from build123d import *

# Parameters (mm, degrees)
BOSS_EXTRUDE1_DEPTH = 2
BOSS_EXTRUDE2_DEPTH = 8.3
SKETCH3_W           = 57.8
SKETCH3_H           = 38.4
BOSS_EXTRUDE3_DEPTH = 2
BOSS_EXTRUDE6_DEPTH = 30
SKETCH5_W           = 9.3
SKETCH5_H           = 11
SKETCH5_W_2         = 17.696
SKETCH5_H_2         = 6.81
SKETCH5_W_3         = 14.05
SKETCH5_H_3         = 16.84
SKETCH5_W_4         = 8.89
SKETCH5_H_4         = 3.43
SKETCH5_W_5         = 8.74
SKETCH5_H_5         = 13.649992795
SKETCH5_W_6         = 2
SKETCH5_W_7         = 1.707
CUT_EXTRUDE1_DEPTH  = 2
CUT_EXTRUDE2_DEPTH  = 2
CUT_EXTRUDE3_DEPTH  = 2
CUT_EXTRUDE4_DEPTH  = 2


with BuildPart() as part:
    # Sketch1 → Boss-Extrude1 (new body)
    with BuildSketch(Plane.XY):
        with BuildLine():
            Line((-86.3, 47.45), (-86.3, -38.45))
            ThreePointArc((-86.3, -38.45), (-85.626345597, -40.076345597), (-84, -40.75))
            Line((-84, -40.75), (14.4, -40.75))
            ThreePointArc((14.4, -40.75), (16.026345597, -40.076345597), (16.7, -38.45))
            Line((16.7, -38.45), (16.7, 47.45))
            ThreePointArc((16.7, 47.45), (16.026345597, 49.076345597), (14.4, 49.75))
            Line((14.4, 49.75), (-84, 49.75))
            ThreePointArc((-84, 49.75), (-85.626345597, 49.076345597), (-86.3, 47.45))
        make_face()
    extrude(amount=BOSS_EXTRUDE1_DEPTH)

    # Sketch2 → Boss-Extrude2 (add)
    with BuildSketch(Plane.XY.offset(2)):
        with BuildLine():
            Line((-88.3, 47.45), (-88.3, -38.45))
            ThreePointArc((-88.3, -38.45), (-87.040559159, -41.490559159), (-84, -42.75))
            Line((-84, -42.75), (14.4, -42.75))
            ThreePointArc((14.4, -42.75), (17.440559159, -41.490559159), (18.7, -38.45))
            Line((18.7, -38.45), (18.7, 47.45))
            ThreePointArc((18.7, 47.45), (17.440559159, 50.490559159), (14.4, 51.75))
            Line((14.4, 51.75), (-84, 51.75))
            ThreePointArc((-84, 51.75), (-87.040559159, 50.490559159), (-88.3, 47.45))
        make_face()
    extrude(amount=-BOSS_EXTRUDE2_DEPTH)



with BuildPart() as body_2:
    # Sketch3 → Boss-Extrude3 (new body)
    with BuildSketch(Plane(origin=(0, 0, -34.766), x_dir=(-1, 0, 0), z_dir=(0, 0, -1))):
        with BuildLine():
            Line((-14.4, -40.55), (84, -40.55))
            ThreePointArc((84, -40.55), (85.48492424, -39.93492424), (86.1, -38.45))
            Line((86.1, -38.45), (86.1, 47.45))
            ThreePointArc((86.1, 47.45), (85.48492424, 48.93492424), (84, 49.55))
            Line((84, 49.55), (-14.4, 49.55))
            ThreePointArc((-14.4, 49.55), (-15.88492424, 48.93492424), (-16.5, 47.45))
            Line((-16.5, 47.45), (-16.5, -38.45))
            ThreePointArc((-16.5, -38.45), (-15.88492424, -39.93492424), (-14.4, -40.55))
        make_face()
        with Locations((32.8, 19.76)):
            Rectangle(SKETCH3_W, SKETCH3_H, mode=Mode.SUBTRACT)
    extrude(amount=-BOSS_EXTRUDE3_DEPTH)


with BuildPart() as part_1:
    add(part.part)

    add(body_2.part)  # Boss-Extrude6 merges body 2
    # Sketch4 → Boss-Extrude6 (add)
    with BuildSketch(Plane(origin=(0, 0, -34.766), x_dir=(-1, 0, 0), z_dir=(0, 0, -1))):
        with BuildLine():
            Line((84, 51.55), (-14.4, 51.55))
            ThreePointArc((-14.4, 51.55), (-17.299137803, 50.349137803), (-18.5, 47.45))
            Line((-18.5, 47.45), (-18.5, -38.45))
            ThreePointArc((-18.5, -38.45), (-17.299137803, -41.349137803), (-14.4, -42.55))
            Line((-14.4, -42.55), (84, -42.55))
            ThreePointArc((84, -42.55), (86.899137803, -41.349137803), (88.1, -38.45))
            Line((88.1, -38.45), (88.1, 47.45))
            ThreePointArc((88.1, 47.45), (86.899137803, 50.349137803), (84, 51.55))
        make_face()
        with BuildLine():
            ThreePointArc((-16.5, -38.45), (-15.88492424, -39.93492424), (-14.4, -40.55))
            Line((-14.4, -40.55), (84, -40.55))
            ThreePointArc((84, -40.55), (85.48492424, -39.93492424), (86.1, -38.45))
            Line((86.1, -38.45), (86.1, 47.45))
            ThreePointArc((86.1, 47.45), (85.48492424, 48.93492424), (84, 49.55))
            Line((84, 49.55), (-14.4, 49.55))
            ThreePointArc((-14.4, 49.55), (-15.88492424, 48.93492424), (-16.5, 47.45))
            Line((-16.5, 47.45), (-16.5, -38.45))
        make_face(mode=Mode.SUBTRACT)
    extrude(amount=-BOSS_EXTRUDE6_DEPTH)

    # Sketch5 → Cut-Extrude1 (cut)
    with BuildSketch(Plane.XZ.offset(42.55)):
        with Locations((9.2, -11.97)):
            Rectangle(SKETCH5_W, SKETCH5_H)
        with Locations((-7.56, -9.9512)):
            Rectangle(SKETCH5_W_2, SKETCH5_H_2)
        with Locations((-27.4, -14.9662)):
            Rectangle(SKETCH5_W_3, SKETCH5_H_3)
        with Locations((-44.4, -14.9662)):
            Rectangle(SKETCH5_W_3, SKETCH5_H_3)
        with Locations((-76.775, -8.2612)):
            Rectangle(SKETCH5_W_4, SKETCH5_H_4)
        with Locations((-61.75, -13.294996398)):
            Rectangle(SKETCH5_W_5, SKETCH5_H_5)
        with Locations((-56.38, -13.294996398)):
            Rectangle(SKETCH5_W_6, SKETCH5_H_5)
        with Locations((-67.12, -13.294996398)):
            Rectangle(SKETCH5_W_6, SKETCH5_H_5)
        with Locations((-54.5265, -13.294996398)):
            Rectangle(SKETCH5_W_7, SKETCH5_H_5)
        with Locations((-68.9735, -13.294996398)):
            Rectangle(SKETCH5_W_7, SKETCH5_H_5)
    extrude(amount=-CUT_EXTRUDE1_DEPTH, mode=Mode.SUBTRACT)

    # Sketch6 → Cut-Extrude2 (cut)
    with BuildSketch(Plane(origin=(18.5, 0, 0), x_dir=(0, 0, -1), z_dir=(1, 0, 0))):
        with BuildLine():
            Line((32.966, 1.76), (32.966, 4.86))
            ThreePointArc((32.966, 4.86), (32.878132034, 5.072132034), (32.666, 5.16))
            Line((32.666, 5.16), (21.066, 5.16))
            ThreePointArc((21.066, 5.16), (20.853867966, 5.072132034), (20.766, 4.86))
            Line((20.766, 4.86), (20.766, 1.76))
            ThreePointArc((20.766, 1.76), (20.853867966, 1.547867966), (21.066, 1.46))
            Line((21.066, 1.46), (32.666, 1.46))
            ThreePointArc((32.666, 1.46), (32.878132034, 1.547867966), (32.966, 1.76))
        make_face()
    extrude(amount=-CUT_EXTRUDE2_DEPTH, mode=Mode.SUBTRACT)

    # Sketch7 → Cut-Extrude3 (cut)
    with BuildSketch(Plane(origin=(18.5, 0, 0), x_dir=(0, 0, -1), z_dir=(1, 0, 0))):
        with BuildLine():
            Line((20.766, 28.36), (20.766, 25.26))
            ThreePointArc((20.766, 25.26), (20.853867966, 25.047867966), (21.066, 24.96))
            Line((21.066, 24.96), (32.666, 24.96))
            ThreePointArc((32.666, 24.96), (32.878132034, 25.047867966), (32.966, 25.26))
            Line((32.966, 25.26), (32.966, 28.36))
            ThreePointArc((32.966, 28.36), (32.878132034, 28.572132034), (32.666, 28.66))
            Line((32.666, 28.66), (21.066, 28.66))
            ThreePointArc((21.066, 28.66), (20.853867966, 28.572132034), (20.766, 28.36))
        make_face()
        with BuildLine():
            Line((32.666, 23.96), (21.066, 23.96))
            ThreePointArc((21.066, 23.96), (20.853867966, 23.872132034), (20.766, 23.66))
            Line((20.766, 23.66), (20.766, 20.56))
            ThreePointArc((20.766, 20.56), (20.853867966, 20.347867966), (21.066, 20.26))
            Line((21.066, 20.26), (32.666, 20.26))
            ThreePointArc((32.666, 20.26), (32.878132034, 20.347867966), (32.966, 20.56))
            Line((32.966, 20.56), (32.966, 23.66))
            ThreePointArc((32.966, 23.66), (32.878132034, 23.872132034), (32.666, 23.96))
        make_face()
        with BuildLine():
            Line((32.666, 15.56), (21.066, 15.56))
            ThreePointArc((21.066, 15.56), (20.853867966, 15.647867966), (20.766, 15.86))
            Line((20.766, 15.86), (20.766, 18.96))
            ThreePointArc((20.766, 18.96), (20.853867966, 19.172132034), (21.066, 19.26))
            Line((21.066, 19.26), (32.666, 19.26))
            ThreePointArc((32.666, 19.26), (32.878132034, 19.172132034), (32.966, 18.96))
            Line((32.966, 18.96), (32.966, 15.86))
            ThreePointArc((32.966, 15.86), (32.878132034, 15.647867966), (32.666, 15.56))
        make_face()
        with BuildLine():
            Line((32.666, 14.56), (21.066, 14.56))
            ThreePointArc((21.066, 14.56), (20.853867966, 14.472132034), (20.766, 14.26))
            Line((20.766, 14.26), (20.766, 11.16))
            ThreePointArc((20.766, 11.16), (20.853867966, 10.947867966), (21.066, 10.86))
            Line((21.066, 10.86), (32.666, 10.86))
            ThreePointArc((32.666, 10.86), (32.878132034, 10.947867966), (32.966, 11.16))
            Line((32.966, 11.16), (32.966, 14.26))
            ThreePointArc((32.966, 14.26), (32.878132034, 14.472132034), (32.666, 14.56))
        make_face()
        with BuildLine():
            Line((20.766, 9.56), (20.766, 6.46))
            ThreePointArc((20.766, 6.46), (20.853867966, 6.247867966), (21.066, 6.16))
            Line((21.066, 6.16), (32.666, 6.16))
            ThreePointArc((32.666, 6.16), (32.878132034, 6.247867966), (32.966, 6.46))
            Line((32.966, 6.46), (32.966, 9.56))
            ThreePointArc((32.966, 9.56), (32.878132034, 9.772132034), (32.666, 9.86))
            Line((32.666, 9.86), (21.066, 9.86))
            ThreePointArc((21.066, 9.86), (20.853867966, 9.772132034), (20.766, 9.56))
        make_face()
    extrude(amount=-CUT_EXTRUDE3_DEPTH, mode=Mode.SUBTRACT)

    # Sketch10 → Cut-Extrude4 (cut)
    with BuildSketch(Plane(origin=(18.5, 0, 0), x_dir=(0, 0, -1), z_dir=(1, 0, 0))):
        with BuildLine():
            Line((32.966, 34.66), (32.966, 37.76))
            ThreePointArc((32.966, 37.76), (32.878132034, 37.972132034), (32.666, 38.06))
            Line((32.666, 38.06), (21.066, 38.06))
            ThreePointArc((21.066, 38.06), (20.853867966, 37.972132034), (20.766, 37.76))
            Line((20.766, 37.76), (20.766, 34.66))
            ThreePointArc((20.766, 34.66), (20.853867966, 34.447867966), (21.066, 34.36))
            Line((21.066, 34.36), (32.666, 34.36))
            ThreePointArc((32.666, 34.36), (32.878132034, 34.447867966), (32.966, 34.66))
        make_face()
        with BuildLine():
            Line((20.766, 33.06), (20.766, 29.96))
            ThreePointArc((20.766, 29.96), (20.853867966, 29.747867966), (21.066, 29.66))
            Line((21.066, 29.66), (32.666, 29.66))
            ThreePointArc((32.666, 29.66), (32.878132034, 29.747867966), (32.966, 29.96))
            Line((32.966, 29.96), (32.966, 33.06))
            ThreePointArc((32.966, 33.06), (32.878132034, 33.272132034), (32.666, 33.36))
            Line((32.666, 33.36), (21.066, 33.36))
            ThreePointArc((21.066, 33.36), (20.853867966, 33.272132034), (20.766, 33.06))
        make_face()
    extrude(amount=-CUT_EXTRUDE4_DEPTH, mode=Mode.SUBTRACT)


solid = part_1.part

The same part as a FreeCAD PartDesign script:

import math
import FreeCAD as App
import Part
import Sketcher

doc = App.newDocument("Part")
body = doc.addObject("PartDesign::Body", "Body")

# Sketch on XY plane
sketch1 = body.newObject("Sketcher::SketchObject", "Sketch")
sketch1.AttachmentSupport = (doc.getObject("XY_Plane"), [""])
sketch1.MapMode = "FlatFace"
sketch1.addGeometry([
    Part.LineSegment(App.Vector(-86.3, 47.5, 0), App.Vector(-86.3, -38.5, 0)),  # 0
    Part.ArcOfCircle(Part.Circle(App.Vector(-84, -38.5, 0), App.Vector(0, 0, 1), 2.3), math.radians(180), math.radians(270)),  # 1
    Part.LineSegment(App.Vector(-84, -40.8, 0), App.Vector(14.4, -40.8, 0)),  # 2
    Part.ArcOfCircle(Part.Circle(App.Vector(14.4, -38.5, 0), App.Vector(0, 0, 1), 2.3), math.radians(-90), math.radians(0)),  # 3
    Part.LineSegment(App.Vector(16.7, -38.5, 0), App.Vector(16.7, 47.5, 0)),  # 4
    Part.ArcOfCircle(Part.Circle(App.Vector(14.4, 47.5, 0), App.Vector(0, 0, 1), 2.3), math.radians(0), math.radians(90)),  # 5
    Part.LineSegment(App.Vector(14.4, 49.8, 0), App.Vector(-84, 49.8, 0)),  # 6
    Part.ArcOfCircle(Part.Circle(App.Vector(-84, 47.5, 0), App.Vector(0, 0, 1), 2.3), math.radians(90), math.radians(180)),  # 7
], False)
sketch1.addConstraint([
    Sketcher.Constraint("Tangent", 0, 2, 1, 1),
    Sketcher.Constraint("Tangent", 1, 2, 2, 1),
    Sketcher.Constraint("Tangent", 2, 2, 3, 1),
    Sketcher.Constraint("Tangent", 3, 2, 4, 1),
    Sketcher.Constraint("Tangent", 4, 2, 5, 1),
    Sketcher.Constraint("Tangent", 5, 2, 6, 1),
    Sketcher.Constraint("Tangent", 6, 2, 7, 1),
    Sketcher.Constraint("Tangent", 7, 2, 0, 1),
    Sketcher.Constraint("Vertical", 0),
    Sketcher.Constraint("Horizontal", 2),
    Sketcher.Constraint("Vertical", 4),
    Sketcher.Constraint("Horizontal", 6),
    Sketcher.Constraint("Equal", 1, 3),
    Sketcher.Constraint("Equal", 3, 5),
    Sketcher.Constraint("Equal", 5, 7),
    Sketcher.Constraint("Radius", 1, 2.3),
    Sketcher.Constraint("DistanceX", 2, 1, 2, 2, 98.4),
    Sketcher.Constraint("DistanceY", 0, 2, 0, 1, 85.9),
    Sketcher.Constraint("DistanceX", 1, 3, -1, 1, 84.0),
    Sketcher.Constraint("DistanceY", 1, 3, -1, 1, 38.45),
])
pad1 = body.newObject("PartDesign::Pad", "Pad")
pad1.Profile = sketch1
pad1.Length = 2

# Sketch on XY plane
sketch2 = body.newObject("Sketcher::SketchObject", "Sketch001")
sketch2.AttachmentSupport = (doc.getObject("XY_Plane"), [""])
sketch2.MapMode = "FlatFace"
sketch2.AttachmentOffset = App.Placement(App.Vector(0, 0, 2), App.Rotation())
sketch2.addGeometry([
    Part.LineSegment(App.Vector(-88.3, 47.5, 0), App.Vector(-88.3, -38.5, 0)),  # 0
    Part.ArcOfCircle(Part.Circle(App.Vector(-84, -38.5, 0), App.Vector(0, 0, 1), 4.3), math.radians(180), math.radians(270)),  # 1
    Part.LineSegment(App.Vector(-84, -42.8, 0), App.Vector(14.4, -42.8, 0)),  # 2
    Part.ArcOfCircle(Part.Circle(App.Vector(14.4, -38.5, 0), App.Vector(0, 0, 1), 4.3), math.radians(-90), math.radians(0)),  # 3
    Part.LineSegment(App.Vector(18.7, -38.5, 0), App.Vector(18.7, 47.5, 0)),  # 4
    Part.ArcOfCircle(Part.Circle(App.Vector(14.4, 47.5, 0), App.Vector(0, 0, 1), 4.3), math.radians(0), math.radians(90)),  # 5
    Part.LineSegment(App.Vector(14.4, 51.8, 0), App.Vector(-84, 51.8, 0)),  # 6
    Part.ArcOfCircle(Part.Circle(App.Vector(-84, 47.5, 0), App.Vector(0, 0, 1), 4.3), math.radians(90), math.radians(180)),  # 7
], False)
sketch2.addConstraint([
    Sketcher.Constraint("Tangent", 0, 2, 1, 1),
    Sketcher.Constraint("Tangent", 1, 2, 2, 1),
    Sketcher.Constraint("Tangent", 2, 2, 3, 1),
    Sketcher.Constraint("Tangent", 3, 2, 4, 1),
    Sketcher.Constraint("Tangent", 4, 2, 5, 1),
    Sketcher.Constraint("Tangent", 5, 2, 6, 1),
    Sketcher.Constraint("Tangent", 6, 2, 7, 1),
    Sketcher.Constraint("Tangent", 7, 2, 0, 1),
    Sketcher.Constraint("Vertical", 0),
    Sketcher.Constraint("Horizontal", 2),
    Sketcher.Constraint("Vertical", 4),
    Sketcher.Constraint("Horizontal", 6),
    Sketcher.Constraint("Equal", 1, 3),
    Sketcher.Constraint("Equal", 3, 5),
    Sketcher.Constraint("Equal", 5, 7),
    Sketcher.Constraint("Radius", 1, 4.3),
    Sketcher.Constraint("DistanceX", 2, 1, 2, 2, 98.4),
    Sketcher.Constraint("DistanceY", 0, 2, 0, 1, 85.9),
    Sketcher.Constraint("DistanceX", 1, 3, -1, 1, 84.0),
    Sketcher.Constraint("DistanceY", 1, 3, -1, 1, 38.45),
])
pad2 = body.newObject("PartDesign::Pad", "Pad001")
pad2.Profile = sketch2
pad2.Length = 8.3
pad2.Reversed = True
body2 = doc.addObject("PartDesign::Body", "Body001")

# Sketch on XY plane
sketch3 = body2.newObject("Sketcher::SketchObject", "Sketch002")
sketch3.AttachmentSupport = (doc.getObject("XY_Plane001"), [""])
sketch3.MapMode = "FlatFace"
sketch3.AttachmentOffset = App.Placement(App.Vector(0, 0, -34.766), App.Rotation())
sketch3.addGeometry([
    Part.LineSegment(App.Vector(14.4, -40.5, 0), App.Vector(-84, -40.5, 0)),  # 0
    Part.ArcOfCircle(Part.Circle(App.Vector(-84, -38.4, 0), App.Vector(0, 0, 1), 2.1), math.radians(-180), math.radians(-90)),  # 1
    Part.LineSegment(App.Vector(-86.1, -38.5, 0), App.Vector(-86.1, 47.5, 0)),  # 2
    Part.ArcOfCircle(Part.Circle(App.Vector(-84, 47.4, 0), App.Vector(0, 0, 1), 2.1), math.radians(90), math.radians(180)),  # 3
    Part.LineSegment(App.Vector(-84, 49.5, 0), App.Vector(14.4, 49.5, 0)),  # 4
    Part.ArcOfCircle(Part.Circle(App.Vector(14.4, 47.4, 0), App.Vector(0, 0, 1), 2.1), math.radians(0), math.radians(90)),  # 5
    Part.LineSegment(App.Vector(16.5, 47.5, 0), App.Vector(16.5, -38.5, 0)),  # 6
    Part.ArcOfCircle(Part.Circle(App.Vector(14.4, -38.4, 0), App.Vector(0, 0, 1), 2.1), math.radians(-90), math.radians(0)),  # 7
    Part.LineSegment(App.Vector(-61.7, 0.6, 0), App.Vector(-3.9, 0.6, 0)),  # 8
    Part.LineSegment(App.Vector(-3.9, 0.6, 0), App.Vector(-3.9, 39, 0)),  # 9
    Part.LineSegment(App.Vector(-3.9, 39, 0), App.Vector(-61.7, 39, 0)),  # 10
    Part.LineSegment(App.Vector(-61.7, 39, 0), App.Vector(-61.7, 0.6, 0)),  # 11
], False)
sketch3.addConstraint([
    Sketcher.Constraint("Tangent", 0, 2, 1, 2),
    Sketcher.Constraint("Tangent", 1, 1, 2, 1),
    Sketcher.Constraint("Tangent", 2, 2, 3, 2),
    Sketcher.Constraint("Tangent", 3, 1, 4, 1),
    Sketcher.Constraint("Tangent", 4, 2, 5, 2),
    Sketcher.Constraint("Tangent", 5, 1, 6, 1),
    Sketcher.Constraint("Tangent", 6, 2, 7, 2),
    Sketcher.Constraint("Tangent", 7, 1, 0, 1),
    Sketcher.Constraint("Coincident", 8, 2, 9, 1),
    Sketcher.Constraint("Coincident", 9, 2, 10, 1),
    Sketcher.Constraint("Coincident", 10, 2, 11, 1),
    Sketcher.Constraint("Coincident", 11, 2, 8, 1),
    Sketcher.Constraint("Horizontal", 0),
    Sketcher.Constraint("Vertical", 2),
    Sketcher.Constraint("Horizontal", 4),
    Sketcher.Constraint("Vertical", 6),
    Sketcher.Constraint("Horizontal", 8),
    Sketcher.Constraint("Vertical", 9),
    Sketcher.Constraint("Horizontal", 10),
    Sketcher.Constraint("Vertical", 11),
    Sketcher.Constraint("Equal", 1, 3),
    Sketcher.Constraint("Equal", 3, 5),
    Sketcher.Constraint("Equal", 5, 7),
    Sketcher.Constraint("Radius", 1, 2.1),
    Sketcher.Constraint("DistanceX", 0, 2, 0, 1, 98.4),
    Sketcher.Constraint("DistanceX", 8, 1, 8, 2, 57.8),
    Sketcher.Constraint("DistanceY", 2, 1, 2, 2, 85.9),
    Sketcher.Constraint("DistanceY", 9, 1, 9, 2, 38.4),
    Sketcher.Constraint("DistanceX", 1, 3, -1, 1, 84.0),
    Sketcher.Constraint("DistanceX", 8, 2, -1, 1, 3.9),
    Sketcher.Constraint("DistanceY", 1, 3, -1, 1, 38.45),
    Sketcher.Constraint("DistanceY", -1, 1, 8, 2, 0.56),
])
pad3 = body2.newObject("PartDesign::Pad", "Pad002")
pad3.Profile = sketch3
pad3.Length = 2
body.AllowCompound = True
doc.recompute()

boolean = body.newObject("PartDesign::Boolean", "Boolean")
boolean.Type = "Fuse"
boolean.addObjects([body2])

# Sketch on XY plane
sketch4 = body.newObject("Sketcher::SketchObject", "Sketch003")
sketch4.AttachmentSupport = (doc.getObject("XY_Plane"), [""])
sketch4.MapMode = "FlatFace"
sketch4.AttachmentOffset = App.Placement(App.Vector(0, 0, -34.766), App.Rotation())
sketch4.addGeometry([
    Part.LineSegment(App.Vector(-84, 51.5, 0), App.Vector(14.4, 51.5, 0)),  # 0
    Part.ArcOfCircle(Part.Circle(App.Vector(14.4, 47.5, 0), App.Vector(0, 0, 1), 4.1), math.radians(0), math.radians(90)),  # 1
    Part.LineSegment(App.Vector(18.5, 47.5, 0), App.Vector(18.5, -38.5, 0)),  # 2
    Part.ArcOfCircle(Part.Circle(App.Vector(14.4, -38.5, 0), App.Vector(0, 0, 1), 4.1), math.radians(-90), math.radians(0)),  # 3
    Part.LineSegment(App.Vector(14.4, -42.5, 0), App.Vector(-84, -42.5, 0)),  # 4
    Part.ArcOfCircle(Part.Circle(App.Vector(-84, -38.5, 0), App.Vector(0, 0, 1), 4.1), math.radians(180), math.radians(270)),  # 5
    Part.LineSegment(App.Vector(-88.1, -38.5, 0), App.Vector(-88.1, 47.5, 0)),  # 6
    Part.ArcOfCircle(Part.Circle(App.Vector(-84, 47.5, 0), App.Vector(0, 0, 1), 4.1), math.radians(90), math.radians(180)),  # 7
    Part.ArcOfCircle(Part.Circle(App.Vector(14.4, -38.4, 0), App.Vector(0, 0, 1), 2.1), math.radians(-90), math.radians(0)),  # 8
    Part.LineSegment(App.Vector(16.5, -38.5, 0), App.Vector(16.5, 47.5, 0)),  # 9
    Part.ArcOfCircle(Part.Circle(App.Vector(14.4, 47.4, 0), App.Vector(0, 0, 1), 2.1), math.radians(0), math.radians(90)),  # 10
    Part.LineSegment(App.Vector(14.4, 49.5, 0), App.Vector(-84, 49.5, 0)),  # 11
    Part.ArcOfCircle(Part.Circle(App.Vector(-84, 47.4, 0), App.Vector(0, 0, 1), 2.1), math.radians(90), math.radians(180)),  # 12
    Part.LineSegment(App.Vector(-86.1, 47.5, 0), App.Vector(-86.1, -38.5, 0)),  # 13
    Part.ArcOfCircle(Part.Circle(App.Vector(-84, -38.4, 0), App.Vector(0, 0, 1), 2.1), math.radians(-180), math.radians(-90)),  # 14
    Part.LineSegment(App.Vector(-84, -40.5, 0), App.Vector(14.4, -40.5, 0)),  # 15
], False)
sketch4.addConstraint([
    Sketcher.Constraint("Tangent", 0, 2, 1, 2),
    Sketcher.Constraint("Tangent", 1, 1, 2, 1),
    Sketcher.Constraint("Tangent", 2, 2, 3, 2),
    Sketcher.Constraint("Tangent", 3, 1, 4, 1),
    Sketcher.Constraint("Tangent", 4, 2, 5, 2),
    Sketcher.Constraint("Tangent", 5, 1, 6, 1),
    Sketcher.Constraint("Tangent", 6, 2, 7, 2),
    Sketcher.Constraint("Tangent", 7, 1, 0, 1),
    Sketcher.Constraint("Tangent", 8, 2, 9, 1),
    Sketcher.Constraint("Tangent", 9, 2, 10, 1),
    Sketcher.Constraint("Tangent", 10, 2, 11, 1),
    Sketcher.Constraint("Tangent", 11, 2, 12, 1),
    Sketcher.Constraint("Tangent", 12, 2, 13, 1),
    Sketcher.Constraint("Tangent", 13, 2, 14, 1),
    Sketcher.Constraint("Tangent", 14, 2, 15, 1),
    Sketcher.Constraint("Tangent", 15, 2, 8, 1),
    Sketcher.Constraint("Horizontal", 0),
    Sketcher.Constraint("Vertical", 2),
    Sketcher.Constraint("Horizontal", 4),
    Sketcher.Constraint("Vertical", 6),
    Sketcher.Constraint("Vertical", 9),
    Sketcher.Constraint("Horizontal", 11),
    Sketcher.Constraint("Vertical", 13),
    Sketcher.Constraint("Horizontal", 15),
    Sketcher.Constraint("Coincident", 8, 3, 3, 3),
    Sketcher.Constraint("Coincident", 10, 3, 1, 3),
    Sketcher.Constraint("Coincident", 12, 3, 7, 3),
    Sketcher.Constraint("Equal", 1, 3),
    Sketcher.Constraint("Equal", 3, 5),
    Sketcher.Constraint("Equal", 5, 7),
    Sketcher.Constraint("Equal", 12, 14),
    Sketcher.Constraint("Radius", 1, 4.1),
    Sketcher.Constraint("Radius", 8, 2.1),
    Sketcher.Constraint("DistanceX", 0, 1, 0, 2, 98.4),
    Sketcher.Constraint("DistanceY", 2, 2, 2, 1, 85.9),
    Sketcher.Constraint("DistanceX", 5, 3, -1, 1, 84.0),
    Sketcher.Constraint("DistanceY", -1, 1, 1, 3, 47.45),
])
pad4 = body.newObject("PartDesign::Pad", "Pad003")
pad4.Profile = sketch4
pad4.Length = 30

# Sketch on XZ plane
sketch5 = body.newObject("Sketcher::SketchObject", "Sketch004")
sketch5.AttachmentSupport = (doc.getObject("XZ_Plane"), [""])
sketch5.MapMode = "FlatFace"
sketch5.AttachmentOffset = App.Placement(App.Vector(0, 0, 42.55), App.Rotation())
sketch5.addGeometry([
    Part.LineSegment(App.Vector(4.5, -6.5, 0), App.Vector(4.5, -17.5, 0)),  # 0
    Part.LineSegment(App.Vector(4.5, -17.5, 0), App.Vector(13.8, -17.5, 0)),  # 1
    Part.LineSegment(App.Vector(13.8, -17.5, 0), App.Vector(13.8, -6.5, 0)),  # 2
    Part.LineSegment(App.Vector(13.8, -6.5, 0), App.Vector(4.5, -6.5, 0)),  # 3
    Part.LineSegment(App.Vector(-16.4, -6.5, 0), App.Vector(-16.4, -13.4, 0)),  # 4
    Part.LineSegment(App.Vector(-16.4, -13.4, 0), App.Vector(1.3, -13.4, 0)),  # 5
    Part.LineSegment(App.Vector(1.3, -13.4, 0), App.Vector(1.3, -6.5, 0)),  # 6
    Part.LineSegment(App.Vector(1.3, -6.5, 0), App.Vector(-16.4, -6.5, 0)),  # 7
    Part.LineSegment(App.Vector(-34.4, -6.5, 0), App.Vector(-34.4, -23.4, 0)),  # 8
    Part.LineSegment(App.Vector(-34.4, -23.4, 0), App.Vector(-20.4, -23.4, 0)),  # 9
    Part.LineSegment(App.Vector(-20.4, -23.4, 0), App.Vector(-20.4, -6.5, 0)),  # 10
    Part.LineSegment(App.Vector(-20.4, -6.5, 0), App.Vector(-34.4, -6.5, 0)),  # 11
    Part.LineSegment(App.Vector(-51.4, -6.5, 0), App.Vector(-51.4, -23.4, 0)),  # 12
    Part.LineSegment(App.Vector(-51.4, -23.4, 0), App.Vector(-37.4, -23.4, 0)),  # 13
    Part.LineSegment(App.Vector(-37.4, -23.4, 0), App.Vector(-37.4, -6.5, 0)),  # 14
    Part.LineSegment(App.Vector(-37.4, -6.5, 0), App.Vector(-51.4, -6.5, 0)),  # 15
    Part.LineSegment(App.Vector(-81.2, -6.5, 0), App.Vector(-81.2, -10, 0)),  # 16
    Part.LineSegment(App.Vector(-81.2, -10, 0), App.Vector(-72.3, -10, 0)),  # 17
    Part.LineSegment(App.Vector(-72.3, -10, 0), App.Vector(-72.3, -6.5, 0)),  # 18
    Part.LineSegment(App.Vector(-72.3, -6.5, 0), App.Vector(-81.2, -6.5, 0)),  # 19
    Part.LineSegment(App.Vector(-53.7, -20.1, 0), App.Vector(-53.7, -6.5, 0)),  # 20
    Part.LineSegment(App.Vector(-53.7, -6.5, 0), App.Vector(-69.8, -6.5, 0)),  # 21
    Part.LineSegment(App.Vector(-69.8, -6.5, 0), App.Vector(-69.8, -20.1, 0)),  # 22
    Part.LineSegment(App.Vector(-69.8, -20.1, 0), App.Vector(-53.7, -20.1, 0)),  # 23
], False)
sketch5.addConstraint([
    Sketcher.Constraint("Coincident", 0, 2, 1, 1),
    Sketcher.Constraint("Coincident", 1, 2, 2, 1),
    Sketcher.Constraint("Coincident", 2, 2, 3, 1),
    Sketcher.Constraint("Coincident", 3, 2, 0, 1),
    Sketcher.Constraint("Coincident", 4, 2, 5, 1),
    Sketcher.Constraint("Coincident", 5, 2, 6, 1),
    Sketcher.Constraint("Coincident", 6, 2, 7, 1),
    Sketcher.Constraint("Coincident", 7, 2, 4, 1),
    Sketcher.Constraint("Coincident", 8, 2, 9, 1),
    Sketcher.Constraint("Coincident", 9, 2, 10, 1),
    Sketcher.Constraint("Coincident", 10, 2, 11, 1),
    Sketcher.Constraint("Coincident", 11, 2, 8, 1),
    Sketcher.Constraint("Coincident", 12, 2, 13, 1),
    Sketcher.Constraint("Coincident", 13, 2, 14, 1),
    Sketcher.Constraint("Coincident", 14, 2, 15, 1),
    Sketcher.Constraint("Coincident", 15, 2, 12, 1),
    Sketcher.Constraint("Coincident", 16, 2, 17, 1),
    Sketcher.Constraint("Coincident", 17, 2, 18, 1),
    Sketcher.Constraint("Coincident", 18, 2, 19, 1),
    Sketcher.Constraint("Coincident", 19, 2, 16, 1),
    Sketcher.Constraint("Coincident", 20, 2, 21, 1),
    Sketcher.Constraint("Coincident", 21, 2, 22, 1),
    Sketcher.Constraint("Coincident", 22, 2, 23, 1),
    Sketcher.Constraint("Coincident", 23, 2, 20, 1),
    Sketcher.Constraint("Vertical", 0),
    Sketcher.Constraint("Horizontal", 1),
    Sketcher.Constraint("Vertical", 2),
    Sketcher.Constraint("Horizontal", 3),
    Sketcher.Constraint("Vertical", 4),
    Sketcher.Constraint("Horizontal", 5),
    Sketcher.Constraint("Vertical", 6),
    Sketcher.Constraint("Horizontal", 7),
    Sketcher.Constraint("Vertical", 8),
    Sketcher.Constraint("Horizontal", 9),
    Sketcher.Constraint("Vertical", 10),
    Sketcher.Constraint("Horizontal", 11),
    Sketcher.Constraint("Vertical", 12),
    Sketcher.Constraint("Horizontal", 13),
    Sketcher.Constraint("Vertical", 14),
    Sketcher.Constraint("Horizontal", 15),
    Sketcher.Constraint("Vertical", 16),
    Sketcher.Constraint("Horizontal", 17),
    Sketcher.Constraint("Vertical", 18),
    Sketcher.Constraint("Horizontal", 19),
    Sketcher.Constraint("Vertical", 20),
    Sketcher.Constraint("Horizontal", 21),
    Sketcher.Constraint("Vertical", 22),
    Sketcher.Constraint("Horizontal", 23),
    Sketcher.Constraint("Horizontal", 7, 2, 10, 2),
    Sketcher.Constraint("Horizontal", 9, 2, 12, 2),
    Sketcher.Constraint("Horizontal", 11, 2, 14, 2),
    Sketcher.Constraint("Horizontal", 15, 2, 18, 2),
    Sketcher.Constraint("Horizontal", 3, 2, 20, 2),
    Sketcher.Constraint("Equal", 11, 13),
    Sketcher.Constraint("DistanceY", 0, 2, 0, 1, 11.0),
    Sketcher.Constraint("DistanceX", 1, 1, 1, 2, 9.3),
    Sketcher.Constraint("DistanceX", 12, 2, 8, 2, 17.0),
    Sketcher.Constraint("DistanceX", 9, 1, 9, 2, 14.05),
    Sketcher.Constraint("DistanceX", 17, 1, 17, 2, 8.89),
    Sketcher.Constraint("DistanceY", 4, 2, 4, 1, 6.81),
    Sketcher.Constraint("DistanceY", 8, 2, 8, 1, 16.84),
    Sketcher.Constraint("DistanceY", 16, 2, 16, 1, 3.43),
    Sketcher.Constraint("DistanceX", 5, 1, 5, 2, 17.696),
    Sketcher.Constraint("DistanceX", 21, 2, 21, 1, 16.154),
    Sketcher.Constraint("DistanceX", -1, 1, 0, 2, 4.55),
    Sketcher.Constraint("DistanceY", 0, 2, -1, 1, 17.47),
    Sketcher.Constraint("DistanceX", 16, 2, -1, 1, 81.22),
    Sketcher.Constraint("DistanceX", 4, 2, -1, 1, 16.408),
    Sketcher.Constraint("DistanceX", 8, 2, -1, 1, 34.425),
    Sketcher.Constraint("DistanceX", 20, 2, -1, 1, 53.673),
    Sketcher.Constraint("DistanceY", 4, 2, -1, 1, 13.3562),
    Sketcher.Constraint("DistanceY", 20, 1, 20, 2, 13.649993),
])
pocket1 = body.newObject("PartDesign::Pocket", "Pocket")
pocket1.Profile = sketch5
pocket1.Length = 2

# Sketch on YZ plane
sketch6 = body.newObject("Sketcher::SketchObject", "Sketch005")
sketch6.AttachmentSupport = (doc.getObject("YZ_Plane"), [""])
sketch6.MapMode = "FlatFace"
sketch6.AttachmentOffset = App.Placement(App.Vector(0, 0, 18.5), App.Rotation())
sketch6.addGeometry([
    Part.LineSegment(App.Vector(1.76, -32.97, 0), App.Vector(4.86, -32.97, 0)),  # 0
    Part.ArcOfCircle(Part.Circle(App.Vector(4.86, -32.67, 0), App.Vector(0, 0, 1), 0.3), math.radians(-90), math.radians(0)),  # 1
    Part.LineSegment(App.Vector(5.16, -32.67, 0), App.Vector(5.16, -21.07, 0)),  # 2
    Part.ArcOfCircle(Part.Circle(App.Vector(4.86, -21.07, 0), App.Vector(0, 0, 1), 0.3), math.radians(0), math.radians(90)),  # 3
    Part.LineSegment(App.Vector(4.86, -20.77, 0), App.Vector(1.76, -20.77, 0)),  # 4
    Part.ArcOfCircle(Part.Circle(App.Vector(1.76, -21.07, 0), App.Vector(0, 0, 1), 0.3), math.radians(90), math.radians(180)),  # 5
    Part.LineSegment(App.Vector(1.46, -21.07, 0), App.Vector(1.46, -32.67, 0)),  # 6
    Part.ArcOfCircle(Part.Circle(App.Vector(1.76, -32.67, 0), App.Vector(0, 0, 1), 0.3), math.radians(-180), math.radians(-90)),  # 7
], False)
sketch6.addConstraint([
    Sketcher.Constraint("Tangent", 0, 2, 1, 1),
    Sketcher.Constraint("Tangent", 1, 2, 2, 1),
    Sketcher.Constraint("Tangent", 2, 2, 3, 1),
    Sketcher.Constraint("Tangent", 3, 2, 4, 1),
    Sketcher.Constraint("Tangent", 4, 2, 5, 1),
    Sketcher.Constraint("Tangent", 5, 2, 6, 1),
    Sketcher.Constraint("Tangent", 6, 2, 7, 1),
    Sketcher.Constraint("Tangent", 7, 2, 0, 1),
    Sketcher.Constraint("Horizontal", 0),
    Sketcher.Constraint("Vertical", 2),
    Sketcher.Constraint("Horizontal", 4),
    Sketcher.Constraint("Vertical", 6),
    Sketcher.Constraint("Equal", 1, 3),
    Sketcher.Constraint("Equal", 3, 5),
    Sketcher.Constraint("Equal", 5, 7),
    Sketcher.Constraint("Radius", 1, 0.3),
    Sketcher.Constraint("DistanceX", 0, 1, 0, 2, 3.1),
    Sketcher.Constraint("DistanceY", 2, 1, 2, 2, 11.6),
    Sketcher.Constraint("DistanceX", -1, 1, 1, 3, 4.86),
    Sketcher.Constraint("DistanceY", 1, 3, -1, 1, 32.666),
])
pocket2 = body.newObject("PartDesign::Pocket", "Pocket001")
pocket2.Profile = sketch6
pocket2.Length = 2

# Sketch on YZ plane
sketch7 = body.newObject("Sketcher::SketchObject", "Sketch006")
sketch7.AttachmentSupport = (doc.getObject("YZ_Plane"), [""])
sketch7.MapMode = "FlatFace"
sketch7.AttachmentOffset = App.Placement(App.Vector(0, 0, 18.5), App.Rotation())
sketch7.addGeometry([
    Part.LineSegment(App.Vector(28.36, -20.77, 0), App.Vector(25.26, -20.77, 0)),  # 0
    Part.ArcOfCircle(Part.Circle(App.Vector(25.26, -21.07, 0), App.Vector(0, 0, 1), 0.3), math.radians(90), math.radians(180)),  # 1
    Part.LineSegment(App.Vector(24.96, -21.07, 0), App.Vector(24.96, -32.67, 0)),  # 2
    Part.ArcOfCircle(Part.Circle(App.Vector(25.26, -32.67, 0), App.Vector(0, 0, 1), 0.3), math.radians(-180), math.radians(-90)),  # 3
    Part.LineSegment(App.Vector(25.26, -32.97, 0), App.Vector(28.36, -32.97, 0)),  # 4
    Part.ArcOfCircle(Part.Circle(App.Vector(28.36, -32.67, 0), App.Vector(0, 0, 1), 0.3), math.radians(-90), math.radians(0)),  # 5
    Part.LineSegment(App.Vector(28.66, -32.67, 0), App.Vector(28.66, -21.07, 0)),  # 6
    Part.ArcOfCircle(Part.Circle(App.Vector(28.36, -21.07, 0), App.Vector(0, 0, 1), 0.3), math.radians(0), math.radians(90)),  # 7
    Part.LineSegment(App.Vector(23.96, -32.67, 0), App.Vector(23.96, -21.07, 0)),  # 8
    Part.ArcOfCircle(Part.Circle(App.Vector(23.66, -21.07, 0), App.Vector(0, 0, 1), 0.3), math.radians(0), math.radians(90)),  # 9
    Part.LineSegment(App.Vector(23.66, -20.77, 0), App.Vector(20.56, -20.77, 0)),  # 10
    Part.ArcOfCircle(Part.Circle(App.Vector(20.56, -21.07, 0), App.Vector(0, 0, 1), 0.3), math.radians(90), math.radians(180)),  # 11
    Part.LineSegment(App.Vector(20.26, -21.07, 0), App.Vector(20.26, -32.67, 0)),  # 12
    Part.ArcOfCircle(Part.Circle(App.Vector(20.56, -32.67, 0), App.Vector(0, 0, 1), 0.3), math.radians(-180), math.radians(-90)),  # 13
    Part.LineSegment(App.Vector(20.56, -32.97, 0), App.Vector(23.66, -32.97, 0)),  # 14
    Part.ArcOfCircle(Part.Circle(App.Vector(23.66, -32.67, 0), App.Vector(0, 0, 1), 0.3), math.radians(-90), math.radians(0)),  # 15
    Part.LineSegment(App.Vector(15.56, -21.07, 0), App.Vector(15.56, -32.67, 0)),  # 16
    Part.ArcOfCircle(Part.Circle(App.Vector(15.86, -32.67, 0), App.Vector(0, 0, 1), 0.3), math.radians(-180), math.radians(-90)),  # 17
    Part.LineSegment(App.Vector(15.86, -32.97, 0), App.Vector(18.96, -32.97, 0)),  # 18
    Part.ArcOfCircle(Part.Circle(App.Vector(18.96, -32.67, 0), App.Vector(0, 0, 1), 0.3), math.radians(-90), math.radians(0)),  # 19
    Part.LineSegment(App.Vector(19.26, -32.67, 0), App.Vector(19.26, -21.07, 0)),  # 20
    Part.ArcOfCircle(Part.Circle(App.Vector(18.96, -21.07, 0), App.Vector(0, 0, 1), 0.3), math.radians(0), math.radians(90)),  # 21
    Part.LineSegment(App.Vector(18.96, -20.77, 0), App.Vector(15.86, -20.77, 0)),  # 22
    Part.ArcOfCircle(Part.Circle(App.Vector(15.86, -21.07, 0), App.Vector(0, 0, 1), 0.3), math.radians(90), math.radians(180)),  # 23
    Part.LineSegment(App.Vector(14.56, -32.67, 0), App.Vector(14.56, -21.07, 0)),  # 24
    Part.ArcOfCircle(Part.Circle(App.Vector(14.26, -21.07, 0), App.Vector(0, 0, 1), 0.3), math.radians(0), math.radians(90)),  # 25
    Part.LineSegment(App.Vector(14.26, -20.77, 0), App.Vector(11.16, -20.77, 0)),  # 26
    Part.ArcOfCircle(Part.Circle(App.Vector(11.16, -21.07, 0), App.Vector(0, 0, 1), 0.3), math.radians(90), math.radians(180)),  # 27
    Part.LineSegment(App.Vector(10.86, -21.07, 0), App.Vector(10.86, -32.67, 0)),  # 28
    Part.ArcOfCircle(Part.Circle(App.Vector(11.16, -32.67, 0), App.Vector(0, 0, 1), 0.3), math.radians(-180), math.radians(-90)),  # 29
    Part.LineSegment(App.Vector(11.16, -32.97, 0), App.Vector(14.26, -32.97, 0)),  # 30
    Part.ArcOfCircle(Part.Circle(App.Vector(14.26, -32.67, 0), App.Vector(0, 0, 1), 0.3), math.radians(-90), math.radians(0)),  # 31
    Part.LineSegment(App.Vector(9.56, -20.77, 0), App.Vector(6.46, -20.77, 0)),  # 32
    Part.ArcOfCircle(Part.Circle(App.Vector(6.46, -21.07, 0), App.Vector(0, 0, 1), 0.3), math.radians(90), math.radians(180)),  # 33
    Part.LineSegment(App.Vector(6.16, -21.07, 0), App.Vector(6.16, -32.67, 0)),  # 34
    Part.ArcOfCircle(Part.Circle(App.Vector(6.46, -32.67, 0), App.Vector(0, 0, 1), 0.3), math.radians(-180), math.radians(-90)),  # 35
    Part.LineSegment(App.Vector(6.46, -32.97, 0), App.Vector(9.56, -32.97, 0)),  # 36
    Part.ArcOfCircle(Part.Circle(App.Vector(9.56, -32.67, 0), App.Vector(0, 0, 1), 0.3), math.radians(-90), math.radians(0)),  # 37
    Part.LineSegment(App.Vector(9.86, -32.67, 0), App.Vector(9.86, -21.07, 0)),  # 38
    Part.ArcOfCircle(Part.Circle(App.Vector(9.56, -21.07, 0), App.Vector(0, 0, 1), 0.3), math.radians(0), math.radians(90)),  # 39
], False)
sketch7.addConstraint([
    Sketcher.Constraint("Tangent", 0, 2, 1, 1),
    Sketcher.Constraint("Tangent", 1, 2, 2, 1),
    Sketcher.Constraint("Tangent", 2, 2, 3, 1),
    Sketcher.Constraint("Tangent", 3, 2, 4, 1),
    Sketcher.Constraint("Tangent", 4, 2, 5, 1),
    Sketcher.Constraint("Tangent", 5, 2, 6, 1),
    Sketcher.Constraint("Tangent", 6, 2, 7, 1),
    Sketcher.Constraint("Tangent", 7, 2, 0, 1),
    Sketcher.Constraint("Tangent", 8, 2, 9, 1),
    Sketcher.Constraint("Tangent", 9, 2, 10, 1),
    Sketcher.Constraint("Tangent", 10, 2, 11, 1),
    Sketcher.Constraint("Tangent", 11, 2, 12, 1),
    Sketcher.Constraint("Tangent", 12, 2, 13, 1),
    Sketcher.Constraint("Tangent", 13, 2, 14, 1),
    Sketcher.Constraint("Tangent", 14, 2, 15, 1),
    Sketcher.Constraint("Tangent", 15, 2, 8, 1),
    Sketcher.Constraint("Tangent", 16, 2, 17, 1),
    Sketcher.Constraint("Tangent", 17, 2, 18, 1),
    Sketcher.Constraint("Tangent", 18, 2, 19, 1),
    Sketcher.Constraint("Tangent", 19, 2, 20, 1),
    Sketcher.Constraint("Tangent", 20, 2, 21, 1),
    Sketcher.Constraint("Tangent", 21, 2, 22, 1),
    Sketcher.Constraint("Tangent", 22, 2, 23, 1),
    Sketcher.Constraint("Tangent", 23, 2, 16, 1),
    Sketcher.Constraint("Tangent", 24, 2, 25, 1),
    Sketcher.Constraint("Tangent", 25, 2, 26, 1),
    Sketcher.Constraint("Tangent", 26, 2, 27, 1),
    Sketcher.Constraint("Tangent", 27, 2, 28, 1),
    Sketcher.Constraint("Tangent", 28, 2, 29, 1),
    Sketcher.Constraint("Tangent", 29, 2, 30, 1),
    Sketcher.Constraint("Tangent", 30, 2, 31, 1),
    Sketcher.Constraint("Tangent", 31, 2, 24, 1),
    Sketcher.Constraint("Tangent", 32, 2, 33, 1),
    Sketcher.Constraint("Tangent", 33, 2, 34, 1),
    Sketcher.Constraint("Tangent", 34, 2, 35, 1),
    Sketcher.Constraint("Tangent", 35, 2, 36, 1),
    Sketcher.Constraint("Tangent", 36, 2, 37, 1),
    Sketcher.Constraint("Tangent", 37, 2, 38, 1),
    Sketcher.Constraint("Tangent", 38, 2, 39, 1),
    Sketcher.Constraint("Tangent", 39, 2, 32, 1),
    Sketcher.Constraint("Horizontal", 0),
    Sketcher.Constraint("Vertical", 2),
    Sketcher.Constraint("Horizontal", 4),
    Sketcher.Constraint("Vertical", 6),
    Sketcher.Constraint("Vertical", 8),
    Sketcher.Constraint("Horizontal", 10),
    Sketcher.Constraint("Vertical", 12),
    Sketcher.Constraint("Horizontal", 14),
    Sketcher.Constraint("Vertical", 16),
    Sketcher.Constraint("Horizontal", 18),
    Sketcher.Constraint("Vertical", 20),
    Sketcher.Constraint("Horizontal", 22),
    Sketcher.Constraint("Vertical", 24),
    Sketcher.Constraint("Horizontal", 26),
    Sketcher.Constraint("Vertical", 28),
    Sketcher.Constraint("Horizontal", 30),
    Sketcher.Constraint("Horizontal", 32),
    Sketcher.Constraint("Vertical", 34),
    Sketcher.Constraint("Horizontal", 36),
    Sketcher.Constraint("Vertical", 38),
    Sketcher.Constraint("Equal", 1, 3),
    Sketcher.Constraint("Equal", 3, 5),
    Sketcher.Constraint("Equal", 5, 7),
    Sketcher.Constraint("Equal", 7, 9),
    Sketcher.Constraint("Equal", 9, 11),
    Sketcher.Constraint("Equal", 11, 13),
    Sketcher.Constraint("Equal", 13, 15),
    Sketcher.Constraint("Equal", 15, 17),
    Sketcher.Constraint("Equal", 17, 19),
    Sketcher.Constraint("Equal", 19, 21),
    Sketcher.Constraint("Equal", 21, 23),
    Sketcher.Constraint("Equal", 23, 25),
    Sketcher.Constraint("Equal", 25, 27),
    Sketcher.Constraint("Equal", 27, 29),
    Sketcher.Constraint("Equal", 29, 31),
    Sketcher.Constraint("Equal", 31, 33),
    Sketcher.Constraint("Equal", 33, 35),
    Sketcher.Constraint("Equal", 35, 37),
    Sketcher.Constraint("Equal", 37, 39),
    Sketcher.Constraint("Horizontal", 7, 3, 9, 3),
    Sketcher.Constraint("Horizontal", 5, 3, 13, 3),
    Sketcher.Constraint("Horizontal", 15, 3, 17, 3),
    Sketcher.Constraint("Horizontal", 11, 3, 21, 3),
    Sketcher.Constraint("Horizontal", 23, 3, 25, 3),
    Sketcher.Constraint("Horizontal", 19, 3, 29, 3),
    Sketcher.Constraint("Horizontal", 27, 3, 33, 3),
    Sketcher.Constraint("Horizontal", 31, 3, 35, 3),
    Sketcher.Constraint("Equal", 4, 10),
    Sketcher.Constraint("Equal", 14, 18),
    Sketcher.Constraint("Equal", 22, 26),
    Sketcher.Constraint("Equal", 30, 32),
    Sketcher.Constraint("Radius", 1, 0.3),
    Sketcher.Constraint("DistanceX", 0, 2, 0, 1, 3.1),
    Sketcher.Constraint("DistanceY", 2, 2, 2, 1, 11.6),
    Sketcher.Constraint("DistanceX", 25, 3, 1, 3, 11.0),
    Sketcher.Constraint("DistanceX", 19, 3, 2, 2, 6.0),
    Sketcher.Constraint("DistanceX", 9, 3, 6, 2, 5.0),
    Sketcher.Constraint("DistanceX", 33, 2, 27, 3, 5.0),
    Sketcher.Constraint("DistanceX", -1, 1, 1, 3, 25.26),
    Sketcher.Constraint("DistanceY", 1, 3, -1, 1, 21.066),
])
pocket3 = body.newObject("PartDesign::Pocket", "Pocket002")
pocket3.Profile = sketch7
pocket3.Length = 2

# Sketch on YZ plane
sketch8 = body.newObject("Sketcher::SketchObject", "Sketch007")
sketch8.AttachmentSupport = (doc.getObject("YZ_Plane"), [""])
sketch8.MapMode = "FlatFace"
sketch8.AttachmentOffset = App.Placement(App.Vector(0, 0, 18.5), App.Rotation())
sketch8.addGeometry([
    Part.LineSegment(App.Vector(34.66, -32.97, 0), App.Vector(37.76, -32.97, 0)),  # 0
    Part.ArcOfCircle(Part.Circle(App.Vector(37.76, -32.67, 0), App.Vector(0, 0, 1), 0.3), math.radians(-90), math.radians(0)),  # 1
    Part.LineSegment(App.Vector(38.06, -32.67, 0), App.Vector(38.06, -21.07, 0)),  # 2
    Part.ArcOfCircle(Part.Circle(App.Vector(37.76, -21.07, 0), App.Vector(0, 0, 1), 0.3), math.radians(0), math.radians(90)),  # 3
    Part.LineSegment(App.Vector(37.76, -20.77, 0), App.Vector(34.66, -20.77, 0)),  # 4
    Part.ArcOfCircle(Part.Circle(App.Vector(34.66, -21.07, 0), App.Vector(0, 0, 1), 0.3), math.radians(90), math.radians(180)),  # 5
    Part.LineSegment(App.Vector(34.36, -21.07, 0), App.Vector(34.36, -32.67, 0)),  # 6
    Part.ArcOfCircle(Part.Circle(App.Vector(34.66, -32.67, 0), App.Vector(0, 0, 1), 0.3), math.radians(-180), math.radians(-90)),  # 7
    Part.LineSegment(App.Vector(33.06, -20.77, 0), App.Vector(29.96, -20.77, 0)),  # 8
    Part.ArcOfCircle(Part.Circle(App.Vector(29.96, -21.07, 0), App.Vector(0, 0, 1), 0.3), math.radians(90), math.radians(180)),  # 9
    Part.LineSegment(App.Vector(29.66, -21.07, 0), App.Vector(29.66, -32.67, 0)),  # 10
    Part.ArcOfCircle(Part.Circle(App.Vector(29.96, -32.67, 0), App.Vector(0, 0, 1), 0.3), math.radians(-180), math.radians(-90)),  # 11
    Part.LineSegment(App.Vector(29.96, -32.97, 0), App.Vector(33.06, -32.97, 0)),  # 12
    Part.ArcOfCircle(Part.Circle(App.Vector(33.06, -32.67, 0), App.Vector(0, 0, 1), 0.3), math.radians(-90), math.radians(0)),  # 13
    Part.LineSegment(App.Vector(33.36, -32.67, 0), App.Vector(33.36, -21.07, 0)),  # 14
    Part.ArcOfCircle(Part.Circle(App.Vector(33.06, -21.07, 0), App.Vector(0, 0, 1), 0.3), math.radians(0), math.radians(90)),  # 15
], False)
sketch8.addConstraint([
    Sketcher.Constraint("Tangent", 0, 2, 1, 1),
    Sketcher.Constraint("Tangent", 1, 2, 2, 1),
    Sketcher.Constraint("Tangent", 2, 2, 3, 1),
    Sketcher.Constraint("Tangent", 3, 2, 4, 1),
    Sketcher.Constraint("Tangent", 4, 2, 5, 1),
    Sketcher.Constraint("Tangent", 5, 2, 6, 1),
    Sketcher.Constraint("Tangent", 6, 2, 7, 1),
    Sketcher.Constraint("Tangent", 7, 2, 0, 1),
    Sketcher.Constraint("Tangent", 8, 2, 9, 1),
    Sketcher.Constraint("Tangent", 9, 2, 10, 1),
    Sketcher.Constraint("Tangent", 10, 2, 11, 1),
    Sketcher.Constraint("Tangent", 11, 2, 12, 1),
    Sketcher.Constraint("Tangent", 12, 2, 13, 1),
    Sketcher.Constraint("Tangent", 13, 2, 14, 1),
    Sketcher.Constraint("Tangent", 14, 2, 15, 1),
    Sketcher.Constraint("Tangent", 15, 2, 8, 1),
    Sketcher.Constraint("Horizontal", 0),
    Sketcher.Constraint("Vertical", 2),
    Sketcher.Constraint("Horizontal", 4),
    Sketcher.Constraint("Vertical", 6),
    Sketcher.Constraint("Horizontal", 8),
    Sketcher.Constraint("Vertical", 10),
    Sketcher.Constraint("Horizontal", 12),
    Sketcher.Constraint("Vertical", 14),
    Sketcher.Constraint("Equal", 1, 3),
    Sketcher.Constraint("Equal", 3, 5),
    Sketcher.Constraint("Equal", 5, 7),
    Sketcher.Constraint("Equal", 7, 9),
    Sketcher.Constraint("Equal", 9, 11),
    Sketcher.Constraint("Equal", 11, 13),
    Sketcher.Constraint("Equal", 13, 15),
    Sketcher.Constraint("Horizontal", 5, 3, 9, 3),
    Sketcher.Constraint("Horizontal", 7, 3, 11, 3),
    Sketcher.Constraint("Equal", 4, 8),
    Sketcher.Constraint("Radius", 1, 0.3),
    Sketcher.Constraint("DistanceX", 0, 1, 0, 2, 3.1),
    Sketcher.Constraint("DistanceY", 2, 1, 2, 2, 11.6),
    Sketcher.Constraint("DistanceX", 13, 3, 1, 2, 5.0),
    Sketcher.Constraint("DistanceX", -1, 1, 1, 3, 37.76),
    Sketcher.Constraint("DistanceY", 1, 3, -1, 1, 32.666),
])
pocket4 = body.newObject("PartDesign::Pocket", "Pocket003")
pocket4.Profile = sketch8
pocket4.Length = 2

doc.recompute()
